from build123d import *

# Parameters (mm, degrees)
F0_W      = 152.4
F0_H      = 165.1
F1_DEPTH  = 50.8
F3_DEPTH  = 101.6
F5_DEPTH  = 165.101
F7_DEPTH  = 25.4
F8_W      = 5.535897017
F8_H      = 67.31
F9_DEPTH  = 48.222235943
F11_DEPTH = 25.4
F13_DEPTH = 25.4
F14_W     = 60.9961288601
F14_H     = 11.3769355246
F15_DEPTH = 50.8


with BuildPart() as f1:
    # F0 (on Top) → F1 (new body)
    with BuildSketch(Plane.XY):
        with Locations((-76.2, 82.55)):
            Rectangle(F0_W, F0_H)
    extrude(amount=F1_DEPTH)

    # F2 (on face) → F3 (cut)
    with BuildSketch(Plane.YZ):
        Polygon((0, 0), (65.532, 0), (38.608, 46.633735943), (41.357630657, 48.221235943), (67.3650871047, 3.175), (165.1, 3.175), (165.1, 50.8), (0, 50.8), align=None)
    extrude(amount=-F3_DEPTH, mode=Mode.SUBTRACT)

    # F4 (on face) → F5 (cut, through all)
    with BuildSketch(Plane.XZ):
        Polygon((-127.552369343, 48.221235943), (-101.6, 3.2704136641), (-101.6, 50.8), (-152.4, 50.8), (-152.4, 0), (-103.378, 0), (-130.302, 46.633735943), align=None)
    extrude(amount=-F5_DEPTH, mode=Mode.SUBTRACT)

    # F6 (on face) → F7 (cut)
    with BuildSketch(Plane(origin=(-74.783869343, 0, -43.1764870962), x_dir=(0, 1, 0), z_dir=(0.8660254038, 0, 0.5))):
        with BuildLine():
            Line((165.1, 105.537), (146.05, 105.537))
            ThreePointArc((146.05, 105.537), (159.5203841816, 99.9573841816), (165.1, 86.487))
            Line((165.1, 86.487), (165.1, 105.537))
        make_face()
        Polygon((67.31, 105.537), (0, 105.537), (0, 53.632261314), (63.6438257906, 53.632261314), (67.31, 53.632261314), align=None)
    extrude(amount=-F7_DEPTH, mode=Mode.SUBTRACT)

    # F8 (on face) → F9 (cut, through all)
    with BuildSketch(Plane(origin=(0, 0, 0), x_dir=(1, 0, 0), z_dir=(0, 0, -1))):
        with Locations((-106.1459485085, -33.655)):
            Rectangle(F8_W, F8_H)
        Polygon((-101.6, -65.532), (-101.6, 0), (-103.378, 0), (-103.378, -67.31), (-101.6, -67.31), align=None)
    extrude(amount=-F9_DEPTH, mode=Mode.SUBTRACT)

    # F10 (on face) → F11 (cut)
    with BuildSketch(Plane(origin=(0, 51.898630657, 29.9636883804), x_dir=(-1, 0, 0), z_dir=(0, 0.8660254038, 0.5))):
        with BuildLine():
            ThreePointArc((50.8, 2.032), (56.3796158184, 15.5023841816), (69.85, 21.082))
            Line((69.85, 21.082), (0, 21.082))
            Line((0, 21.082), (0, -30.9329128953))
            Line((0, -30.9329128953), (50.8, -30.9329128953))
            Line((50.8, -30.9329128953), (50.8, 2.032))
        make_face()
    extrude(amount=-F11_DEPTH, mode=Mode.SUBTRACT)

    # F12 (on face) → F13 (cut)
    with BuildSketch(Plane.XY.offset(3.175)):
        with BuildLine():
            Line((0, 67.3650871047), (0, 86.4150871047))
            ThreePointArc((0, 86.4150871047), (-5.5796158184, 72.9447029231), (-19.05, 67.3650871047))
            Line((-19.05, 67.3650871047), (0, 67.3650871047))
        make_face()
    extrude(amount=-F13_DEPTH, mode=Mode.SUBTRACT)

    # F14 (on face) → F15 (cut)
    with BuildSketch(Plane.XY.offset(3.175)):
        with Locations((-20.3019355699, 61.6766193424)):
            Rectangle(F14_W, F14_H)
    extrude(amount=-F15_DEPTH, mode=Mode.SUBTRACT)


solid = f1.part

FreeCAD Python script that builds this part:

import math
import FreeCAD as App
import Part
import Sketcher
Q = App.Units.Quantity


def add_polygon(sketch, points):
    """Adds a closed chain of lines whose ends are joined by coincident constraints."""
    first, n = sketch.GeometryCount, len(points)
    for a, b in zip(points, points[1:] + points[:1]):
        sketch.addGeometry(Part.LineSegment(App.Vector(*a, 0), App.Vector(*b, 0)), False)
    for i in range(n):
        sketch.addConstraint(Sketcher.Constraint("Coincident", first + i, 2, first + (i + 1) % n, 1))

doc = App.newDocument("Part")
body = doc.addObject("PartDesign::Body", "Body")

# Sketch on XY plane
sketch1 = body.newObject("Sketcher::SketchObject", "Sketch")
sketch1.AttachmentSupport = (doc.getObject("XY_Plane"), [""])
sketch1.MapMode = "FlatFace"
add_polygon(sketch1, [(-152, 165), (-152, 0), (0, 0), (0, 165)])  # lines 0-3
sketch1.addConstraint([
    Sketcher.Constraint("Vertical", 0),
    Sketcher.Constraint("Horizontal", 1),
    Sketcher.Constraint("Vertical", 2),
    Sketcher.Constraint("Horizontal", 3),
    Sketcher.Constraint("Coincident", 1, 2, -1, 1),
    Sketcher.Constraint("DistanceX", 1, 1, 1, 2, Q("6 in")),
    Sketcher.Constraint("DistanceY", 0, 2, 0, 1, Q("6.5 in")),
])
pad1 = body.newObject("PartDesign::Pad", "Pad")
pad1.Profile = sketch1
pad1.Length = Q("2 in")

# Sketch on YZ plane
sketch2 = body.newObject("Sketcher::SketchObject", "Sketch001")
sketch2.AttachmentSupport = (doc.getObject("YZ_Plane"), [""])
sketch2.MapMode = "FlatFace"
add_polygon(sketch2, [(0, 0), (65.5, 0), (38.6, 46.6), (41.4, 48.2), (67.4, 3.2), (165.1, 3.2), (165.1, 50.8), (0, 50.8)])  # lines 0-7
sketch2.addConstraint([
    Sketcher.Constraint("Horizontal", 0),
    Sketcher.Constraint("Horizontal", 4),
    Sketcher.Constraint("Vertical", 5),
    Sketcher.Constraint("Horizontal", 6),
    Sketcher.Constraint("Vertical", 7),
    Sketcher.Constraint("Coincident", 7, 2, -1, 1),
    Sketcher.Constraint("Perpendicular", 1, 2),
    Sketcher.Constraint("Perpendicular", 2, 3),
    Sketcher.Constraint("DistanceY", 7, 2, 7, 1, Q("2 in")),
    Sketcher.Constraint("DistanceX", 6, 2, 6, 1, Q("6.5 in")),
    Sketcher.Constraint("Angle", 1, Q("120 deg")),
    Sketcher.Constraint("DistanceX", 0, 1, 0, 2, Q("2.58 in")),
    Sketcher.Constraint("Distance", 1, Q("2.12 in")),
    Sketcher.Constraint("DistanceY", 5, 1, 5, 2, Q("1.875 in")),
    Sketcher.Constraint("Distance", 2, Q("0.125 in")),
])
pocket1 = body.newObject("PartDesign::Pocket", "Pocket")
pocket1.Profile = sketch2
pocket1.Length = Q("4 in")

# Sketch on XZ plane
sketch3 = body.newObject("Sketcher::SketchObject", "Sketch002")
sketch3.AttachmentSupport = (doc.getObject("XZ_Plane"), [""])
sketch3.MapMode = "FlatFace"
add_polygon(sketch3, [(-127.6, 48.2), (-101.6, 3.3), (-101.6, 50.8), (-152.4, 50.8), (-152.4, 0), (-103.4, 0), (-130.3, 46.6)])  # lines 0-6
sketch3.addConstraint([
    Sketcher.Constraint("Vertical", 1),
    Sketcher.Constraint("Horizontal", 2),
    Sketcher.Constraint("Vertical", 3),
    Sketcher.Constraint("Horizontal", 4),
    Sketcher.Constraint("PointOnObject", 3, 2, -1),
    Sketcher.Constraint("Parallel", 0, 5),
    Sketcher.Constraint("Perpendicular", 5, 6),
    Sketcher.Constraint("Equal", 2, 3),
    Sketcher.Constraint("DistanceX", 2, 2, 2, 1, Q("2 in")),
    Sketcher.Constraint("DistanceX", 0, 2, -1, 1, Q("4 in")),
    Sketcher.Constraint("Angle", 0, Q("-60 deg")),
    Sketcher.Constraint("DistanceX", 4, 1, 4, 2, Q("1.93 in")),
    Sketcher.Constraint("Distance", 5, Q("2.12 in")),
    Sketcher.Constraint("Distance", 6, Q("0.125 in")),
])
pocket2 = body.newObject("PartDesign::Pocket", "Pocket001")
pocket2.Profile = sketch3
pocket2.Type = "ThroughAll"

# Sketch on an angled plane
sketch4 = body.newObject("Sketcher::SketchObject", "Sketch003")
sketch4.Placement = App.Placement(App.Vector(-74.783869, 0, -43.176487), App.Rotation(App.Vector(0, 1, 0), App.Vector(-0.5, 0, 0.866025404), App.Vector(0.866025404, 0, 0.5), "ZXY"))
sketch4.addGeometry(Part.LineSegment(App.Vector(165, 106, 0), App.Vector(146, 106, 0)), False)  # 0
sketch4.addGeometry(Part.ArcOfCircle(Part.Circle(App.Vector(146, 86, 0), App.Vector(0, 0, 1), 19), math.radians(0), math.radians(90)), False)  # 1
sketch4.addGeometry(Part.LineSegment(App.Vector(165, 86, 0), App.Vector(165, 106, 0)), False)  # 2
add_polygon(sketch4, [(67, 106), (0, 106), (0, 54), (67, 54)])  # lines 3-6
sketch4.addConstraint([
    Sketcher.Constraint("Tangent", 0, 2, 1, 2),
    Sketcher.Constraint("Tangent", 1, 1, 2, 1),
    Sketcher.Constraint("Coincident", 2, 2, 0, 1),
    Sketcher.Constraint("Horizontal", 0),
    Sketcher.Constraint("Vertical", 2),
    Sketcher.Constraint("Horizontal", 3),
    Sketcher.Constraint("Vertical", 4),
    Sketcher.Constraint("Horizontal", 5),
    Sketcher.Constraint("Vertical", 6),
    Sketcher.Constraint("PointOnObject", 3, 2, -2),
    Sketcher.Constraint("Horizontal", 2, 2, 3, 2),
    Sketcher.Constraint("Radius", 1, Q("0.75 in")),
    Sketcher.Constraint("DistanceX", 3, 2, 3, 1, Q("2.65 in")),
    Sketcher.Constraint("DistanceX", -1, 1, 1, 1, Q("6.5 in")),
    Sketcher.Constraint("DistanceY", -1, 1, 1, 3, Q("3.405 in")),
    Sketcher.Constraint("DistanceY", 4, 2, 4, 1, Q("51.904739 mm")),
])
pocket3 = body.newObject("PartDesign::Pocket", "Pocket002")
pocket3.Profile = sketch4
pocket3.Length = Q("1 in")

# Sketch on XY plane
sketch5 = body.newObject("Sketcher::SketchObject", "Sketch004")
sketch5.AttachmentSupport = (doc.getObject("XY_Plane"), [""])
sketch5.MapMode = "FlatFace"
add_polygon(sketch5, [(-109, 0), (-109, 67), (-102, 67), (-102, 0)])  # lines 0-3
sketch5.addConstraint([
    Sketcher.Constraint("Vertical", 0),
    Sketcher.Constraint("Horizontal", 1),
    Sketcher.Constraint("Vertical", 2),
    Sketcher.Constraint("Horizontal", 3),
    Sketcher.Constraint("PointOnObject", 2, 2, -1),
    Sketcher.Constraint("DistanceX", 1, 2, -1, 1, Q("4 in")),
    Sketcher.Constraint("DistanceY", 0, 1, 0, 2, Q("2.65 in")),
    Sketcher.Constraint("DistanceX", 1, 1, 1, 2, Q("7.313897 mm")),
])
pocket4 = body.newObject("PartDesign::Pocket", "Pocket003")
pocket4.Profile = sketch5
pocket4.Type = "ThroughAll"
pocket4.Reversed = True

# Sketch on an angled plane
sketch6 = body.newObject("Sketcher::SketchObject", "Sketch005")
sketch6.Placement = App.Placement(App.Vector(0, 51.898631, 29.963688), App.Rotation(App.Vector(-1, 0, 0), App.Vector(0, -0.5, 0.866025404), App.Vector(0, 0.866025404, 0.5), "ZXY"))
sketch6.addGeometry([
    Part.ArcOfCircle(Part.Circle(App.Vector(70, 2, 0), App.Vector(0, 0, 1), 19), math.radians(90), math.radians(180)),  # 0
    Part.LineSegment(App.Vector(70, 21, 0), App.Vector(0, 21, 0)),  # 1
    Part.LineSegment(App.Vector(0, 21, 0), App.Vector(0, -31, 0)),  # 2
    Part.LineSegment(App.Vector(0, -31, 0), App.Vector(51, -31, 0)),  # 3
    Part.LineSegment(App.Vector(51, -31, 0), App.Vector(51, 2, 0)),  # 4
], False)
sketch6.addConstraint([
    Sketcher.Constraint("Tangent", 0, 1, 1, 1),
    Sketcher.Constraint("Coincident", 1, 2, 2, 1),
    Sketcher.Constraint("Coincident", 2, 2, 3, 1),
    Sketcher.Constraint("Coincident", 3, 2, 4, 1),
    Sketcher.Constraint("Tangent", 4, 2, 0, 2),
    Sketcher.Constraint("Horizontal", 1),
    Sketcher.Constraint("Vertical", 2),
    Sketcher.Constraint("Horizontal", 3),
    Sketcher.Constraint("Vertical", 4),
    Sketcher.Constraint("PointOnObject", 1, 2, -2),
    Sketcher.Constraint("DistanceX", 3, 1, 3, 2, Q("2 in")),
    Sketcher.Constraint("Radius", 0, Q("0.75 in")),
    Sketcher.Constraint("DistanceY", -1, 1, 0, 3, Q("0.08 in")),
    Sketcher.Constraint("DistanceY", 2, 2, 2, 1, Q("52.014913 mm")),
])
pocket5 = body.newObject("PartDesign::Pocket", "Pocket004")
pocket5.Profile = sketch6
pocket5.Length = Q("1 in")

# Sketch on XY plane
sketch7 = body.newObject("Sketcher::SketchObject", "Sketch006")
sketch7.AttachmentSupport = (doc.getObject("XY_Plane"), [""])
sketch7.MapMode = "FlatFace"
sketch7.AttachmentOffset = App.Placement(App.Vector(0, 0, 0.125 * 25.4), App.Rotation())
sketch7.addGeometry([
    Part.LineSegment(App.Vector(0, 67, 0), App.Vector(0, 86, 0)),
    Part.ArcOfCircle(Part.Circle(App.Vector(-19, 86, 0), App.Vector(0, 0, 1), 19), math.radians(-90), math.radians(0)),
    Part.LineSegment(App.Vector(-19, 67, 0), App.Vector(0, 67, 0)),
], False)
sketch7.addConstraint([
    Sketcher.Constraint("Tangent", 0, 2, 1, 2),
    Sketcher.Constraint("Tangent", 1, 1, 2, 1),
    Sketcher.Constraint("Coincident", 2, 2, 0, 1),
    Sketcher.Constraint("Vertical", 0),
    Sketcher.Constraint("Horizontal", 2),
    Sketcher.Constraint("PointOnObject", 0, 2, -2),
    Sketcher.Constraint("Radius", 1, Q("0.75 in")),
    Sketcher.Constraint("DistanceY", -1, 1, 1, 3, Q("86.415087 mm")),
])
pocket6 = body.newObject("PartDesign::Pocket", "Pocket005")
pocket6.Profile = sketch7
pocket6.Length = Q("1 in")

# Sketch on XY plane
sketch8 = body.newObject("Sketcher::SketchObject", "Sketch007")
sketch8.AttachmentSupport = (doc.getObject("XY_Plane"), [""])
sketch8.MapMode = "FlatFace"
sketch8.AttachmentOffset = App.Placement(App.Vector(0, 0, 0.125 * 25.4), App.Rotation())
add_polygon(sketch8, [(-51, 67), (-51, 56), (10, 56), (10, 67)])  # lines 0-3
sketch8.addConstraint([
    Sketcher.Constraint("Vertical", 0),
    Sketcher.Constraint("Horizontal", 1),
    Sketcher.Constraint("Vertical", 2),
    Sketcher.Constraint("Horizontal", 3),
    Sketcher.Constraint("DistanceX", 0, 2, -1, 1, Q("2 in")),
    Sketcher.Constraint("DistanceX", 1, 1, 1, 2, Q("60.996129 mm")),
    Sketcher.Constraint("DistanceY", 0, 2, 0, 1, Q("11.376936 mm")),
    Sketcher.Constraint("DistanceY", -1, 1, 0, 2, Q("55.988152 mm")),
])
pocket7 = body.newObject("PartDesign::Pocket", "Pocket006")
pocket7.Profile = sketch8
pocket7.Length = Q("2 in")

doc.recompute()
